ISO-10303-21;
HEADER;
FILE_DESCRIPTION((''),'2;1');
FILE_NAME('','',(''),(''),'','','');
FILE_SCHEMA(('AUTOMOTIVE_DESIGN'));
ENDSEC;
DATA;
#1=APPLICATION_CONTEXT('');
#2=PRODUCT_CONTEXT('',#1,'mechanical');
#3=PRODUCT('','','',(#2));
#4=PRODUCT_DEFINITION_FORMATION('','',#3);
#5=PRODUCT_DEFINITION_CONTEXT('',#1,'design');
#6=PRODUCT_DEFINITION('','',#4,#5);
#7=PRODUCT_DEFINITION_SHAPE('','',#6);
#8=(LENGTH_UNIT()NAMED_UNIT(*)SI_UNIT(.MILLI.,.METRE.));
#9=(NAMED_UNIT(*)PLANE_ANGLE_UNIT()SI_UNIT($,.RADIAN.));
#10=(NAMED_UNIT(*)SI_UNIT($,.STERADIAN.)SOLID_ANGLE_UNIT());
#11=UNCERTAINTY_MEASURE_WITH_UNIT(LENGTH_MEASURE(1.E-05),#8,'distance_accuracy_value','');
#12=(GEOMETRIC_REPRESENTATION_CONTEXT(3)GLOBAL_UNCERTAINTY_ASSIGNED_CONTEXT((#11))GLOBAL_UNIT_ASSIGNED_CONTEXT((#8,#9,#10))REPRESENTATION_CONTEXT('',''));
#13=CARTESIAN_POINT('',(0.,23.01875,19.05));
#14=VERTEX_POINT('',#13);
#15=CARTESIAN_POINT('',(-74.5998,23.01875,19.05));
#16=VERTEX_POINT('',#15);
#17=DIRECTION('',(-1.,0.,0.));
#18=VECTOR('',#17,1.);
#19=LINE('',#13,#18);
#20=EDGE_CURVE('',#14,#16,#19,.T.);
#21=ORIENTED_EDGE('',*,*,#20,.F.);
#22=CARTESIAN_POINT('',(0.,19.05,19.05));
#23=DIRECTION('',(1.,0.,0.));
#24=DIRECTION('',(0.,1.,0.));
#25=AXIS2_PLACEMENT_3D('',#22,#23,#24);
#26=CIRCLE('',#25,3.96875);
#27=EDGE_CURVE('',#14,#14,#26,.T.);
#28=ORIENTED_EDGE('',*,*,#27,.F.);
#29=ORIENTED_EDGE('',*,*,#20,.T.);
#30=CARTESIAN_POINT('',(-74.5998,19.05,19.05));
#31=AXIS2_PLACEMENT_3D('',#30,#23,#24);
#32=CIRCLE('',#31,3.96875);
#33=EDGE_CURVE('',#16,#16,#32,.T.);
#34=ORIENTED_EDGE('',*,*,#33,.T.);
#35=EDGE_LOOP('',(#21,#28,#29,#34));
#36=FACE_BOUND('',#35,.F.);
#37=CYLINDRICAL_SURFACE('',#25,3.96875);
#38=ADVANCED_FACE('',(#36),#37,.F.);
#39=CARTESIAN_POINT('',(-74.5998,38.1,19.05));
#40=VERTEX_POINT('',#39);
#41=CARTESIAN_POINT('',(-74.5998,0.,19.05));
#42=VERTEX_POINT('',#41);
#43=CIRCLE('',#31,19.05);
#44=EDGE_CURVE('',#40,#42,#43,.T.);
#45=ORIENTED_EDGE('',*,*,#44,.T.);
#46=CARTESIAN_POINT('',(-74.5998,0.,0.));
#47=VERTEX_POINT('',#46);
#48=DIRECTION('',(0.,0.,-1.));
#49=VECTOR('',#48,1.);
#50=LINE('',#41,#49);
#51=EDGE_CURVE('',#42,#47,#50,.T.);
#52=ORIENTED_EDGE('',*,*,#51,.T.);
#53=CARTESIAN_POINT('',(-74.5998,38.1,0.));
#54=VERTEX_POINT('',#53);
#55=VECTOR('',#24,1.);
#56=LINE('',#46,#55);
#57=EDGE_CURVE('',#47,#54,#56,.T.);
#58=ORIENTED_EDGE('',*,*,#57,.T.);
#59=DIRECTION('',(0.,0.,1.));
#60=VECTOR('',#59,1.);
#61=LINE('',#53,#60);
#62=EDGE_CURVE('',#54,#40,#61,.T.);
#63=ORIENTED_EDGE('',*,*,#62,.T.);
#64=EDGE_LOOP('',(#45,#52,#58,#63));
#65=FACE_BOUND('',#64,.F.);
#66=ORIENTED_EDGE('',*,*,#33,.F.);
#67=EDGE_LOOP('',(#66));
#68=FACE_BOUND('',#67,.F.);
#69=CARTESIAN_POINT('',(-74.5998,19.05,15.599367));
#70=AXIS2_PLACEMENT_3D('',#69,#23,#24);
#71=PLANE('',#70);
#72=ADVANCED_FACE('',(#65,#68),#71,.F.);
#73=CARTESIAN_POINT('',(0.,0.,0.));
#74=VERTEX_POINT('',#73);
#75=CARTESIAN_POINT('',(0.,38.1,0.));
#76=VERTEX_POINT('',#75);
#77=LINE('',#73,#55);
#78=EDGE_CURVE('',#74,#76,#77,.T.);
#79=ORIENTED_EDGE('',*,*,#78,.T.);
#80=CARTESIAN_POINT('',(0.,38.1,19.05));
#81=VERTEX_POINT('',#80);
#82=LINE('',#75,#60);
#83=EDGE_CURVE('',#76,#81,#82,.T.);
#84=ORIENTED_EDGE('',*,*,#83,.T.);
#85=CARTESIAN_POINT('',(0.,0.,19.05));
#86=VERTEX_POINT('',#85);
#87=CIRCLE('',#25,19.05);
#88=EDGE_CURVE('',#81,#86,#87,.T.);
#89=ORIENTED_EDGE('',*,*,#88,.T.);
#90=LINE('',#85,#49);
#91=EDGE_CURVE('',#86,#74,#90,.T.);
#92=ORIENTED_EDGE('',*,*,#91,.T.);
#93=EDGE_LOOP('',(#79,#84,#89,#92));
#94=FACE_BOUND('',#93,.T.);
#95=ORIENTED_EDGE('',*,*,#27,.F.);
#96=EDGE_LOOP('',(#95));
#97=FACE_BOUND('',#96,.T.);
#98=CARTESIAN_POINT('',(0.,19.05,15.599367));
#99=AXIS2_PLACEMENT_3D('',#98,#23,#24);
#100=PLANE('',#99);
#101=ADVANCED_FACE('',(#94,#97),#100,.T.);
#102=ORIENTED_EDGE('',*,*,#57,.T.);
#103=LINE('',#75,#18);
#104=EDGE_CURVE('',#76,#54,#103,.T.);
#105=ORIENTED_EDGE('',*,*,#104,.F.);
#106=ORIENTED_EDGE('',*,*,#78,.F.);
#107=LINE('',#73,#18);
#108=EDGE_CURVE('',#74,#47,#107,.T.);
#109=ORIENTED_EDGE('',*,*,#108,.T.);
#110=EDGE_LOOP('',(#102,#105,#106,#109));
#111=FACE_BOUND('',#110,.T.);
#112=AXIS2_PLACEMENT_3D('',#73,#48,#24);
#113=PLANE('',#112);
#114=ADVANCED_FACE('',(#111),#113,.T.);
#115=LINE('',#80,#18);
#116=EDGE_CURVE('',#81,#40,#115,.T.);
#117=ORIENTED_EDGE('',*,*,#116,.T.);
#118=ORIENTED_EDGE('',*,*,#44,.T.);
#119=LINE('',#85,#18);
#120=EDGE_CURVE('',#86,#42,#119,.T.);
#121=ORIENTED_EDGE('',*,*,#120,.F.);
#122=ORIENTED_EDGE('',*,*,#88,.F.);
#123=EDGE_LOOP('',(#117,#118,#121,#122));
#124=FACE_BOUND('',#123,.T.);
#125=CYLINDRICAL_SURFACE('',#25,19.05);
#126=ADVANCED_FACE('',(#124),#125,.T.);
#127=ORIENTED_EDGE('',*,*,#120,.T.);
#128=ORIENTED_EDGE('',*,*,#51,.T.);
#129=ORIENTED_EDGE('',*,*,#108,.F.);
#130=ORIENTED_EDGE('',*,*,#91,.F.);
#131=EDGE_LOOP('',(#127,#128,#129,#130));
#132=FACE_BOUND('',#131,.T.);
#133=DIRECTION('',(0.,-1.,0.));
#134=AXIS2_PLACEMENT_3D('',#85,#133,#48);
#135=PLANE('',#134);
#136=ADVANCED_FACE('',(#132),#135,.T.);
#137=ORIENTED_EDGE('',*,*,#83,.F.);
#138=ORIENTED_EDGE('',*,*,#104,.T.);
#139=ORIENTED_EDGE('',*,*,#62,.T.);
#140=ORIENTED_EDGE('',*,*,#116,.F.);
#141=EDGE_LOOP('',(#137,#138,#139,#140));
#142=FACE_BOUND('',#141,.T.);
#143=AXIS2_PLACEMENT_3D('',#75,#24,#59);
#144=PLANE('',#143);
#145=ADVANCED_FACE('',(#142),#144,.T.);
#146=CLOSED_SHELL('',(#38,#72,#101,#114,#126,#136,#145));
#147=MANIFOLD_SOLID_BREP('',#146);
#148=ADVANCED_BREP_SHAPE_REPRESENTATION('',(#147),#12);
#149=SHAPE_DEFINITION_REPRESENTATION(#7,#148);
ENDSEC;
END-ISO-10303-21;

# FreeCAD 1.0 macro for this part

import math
import FreeCAD as App
import Part
import Sketcher
Q = App.Units.Quantity

doc = App.newDocument("Part")
body = doc.addObject("PartDesign::Body", "Body")

# Sketch on YZ plane
sketch1 = body.newObject("Sketcher::SketchObject", "Sketch")
sketch1.AttachmentSupport = (doc.getObject("YZ_Plane"), [""])
sketch1.MapMode = "FlatFace"
sketch1.addGeometry([
    Part.LineSegment(App.Vector(0, 19.05, 0), App.Vector(0, 0, 0)),  # 0
    Part.LineSegment(App.Vector(0, 0, 0), App.Vector(38.1, 0, 0)),  # 1
    Part.LineSegment(App.Vector(38.1, 0, 0), App.Vector(38.1, 19.05, 0)),  # 2
    Part.ArcOfCircle(Part.Circle(App.Vector(19.05, 19.05, 0), App.Vector(0, 0, 1), 19.05), math.radians(0), math.radians(180)),  # 3
    Part.Circle(App.Vector(19.05, 19.05, 0), App.Vector(0, 0, 1), 3.96875),  # 4
], False)
sketch1.addConstraint([
    Sketcher.Constraint("Coincident", 0, 2, 1, 1),
    Sketcher.Constraint("Coincident", 1, 2, 2, 1),
    Sketcher.Constraint("Tangent", 2, 2, 3, 1),
    Sketcher.Constraint("Tangent", 3, 2, 0, 1),
    Sketcher.Constraint("Vertical", 0),
    Sketcher.Constraint("Horizontal", 1),
    Sketcher.Constraint("Vertical", 2),
    Sketcher.Constraint("Coincident", 0, 2, -1, 1),
    Sketcher.Constraint("Coincident", 4, 3, 3, 3),
    Sketcher.Constraint("Radius", 3, Q("0.75 in")),
    Sketcher.Constraint("Diameter", 4, Q("0.3125 in")),
    Sketcher.Constraint("DistanceY", 0, 2, 0, 1, Q("0.75 in")),
])
pad1 = body.newObject("PartDesign::Pad", "Pad")
pad1.Profile = sketch1
pad1.Length = Q("2.937 in")
pad1.Reversed = True

doc.recompute()
